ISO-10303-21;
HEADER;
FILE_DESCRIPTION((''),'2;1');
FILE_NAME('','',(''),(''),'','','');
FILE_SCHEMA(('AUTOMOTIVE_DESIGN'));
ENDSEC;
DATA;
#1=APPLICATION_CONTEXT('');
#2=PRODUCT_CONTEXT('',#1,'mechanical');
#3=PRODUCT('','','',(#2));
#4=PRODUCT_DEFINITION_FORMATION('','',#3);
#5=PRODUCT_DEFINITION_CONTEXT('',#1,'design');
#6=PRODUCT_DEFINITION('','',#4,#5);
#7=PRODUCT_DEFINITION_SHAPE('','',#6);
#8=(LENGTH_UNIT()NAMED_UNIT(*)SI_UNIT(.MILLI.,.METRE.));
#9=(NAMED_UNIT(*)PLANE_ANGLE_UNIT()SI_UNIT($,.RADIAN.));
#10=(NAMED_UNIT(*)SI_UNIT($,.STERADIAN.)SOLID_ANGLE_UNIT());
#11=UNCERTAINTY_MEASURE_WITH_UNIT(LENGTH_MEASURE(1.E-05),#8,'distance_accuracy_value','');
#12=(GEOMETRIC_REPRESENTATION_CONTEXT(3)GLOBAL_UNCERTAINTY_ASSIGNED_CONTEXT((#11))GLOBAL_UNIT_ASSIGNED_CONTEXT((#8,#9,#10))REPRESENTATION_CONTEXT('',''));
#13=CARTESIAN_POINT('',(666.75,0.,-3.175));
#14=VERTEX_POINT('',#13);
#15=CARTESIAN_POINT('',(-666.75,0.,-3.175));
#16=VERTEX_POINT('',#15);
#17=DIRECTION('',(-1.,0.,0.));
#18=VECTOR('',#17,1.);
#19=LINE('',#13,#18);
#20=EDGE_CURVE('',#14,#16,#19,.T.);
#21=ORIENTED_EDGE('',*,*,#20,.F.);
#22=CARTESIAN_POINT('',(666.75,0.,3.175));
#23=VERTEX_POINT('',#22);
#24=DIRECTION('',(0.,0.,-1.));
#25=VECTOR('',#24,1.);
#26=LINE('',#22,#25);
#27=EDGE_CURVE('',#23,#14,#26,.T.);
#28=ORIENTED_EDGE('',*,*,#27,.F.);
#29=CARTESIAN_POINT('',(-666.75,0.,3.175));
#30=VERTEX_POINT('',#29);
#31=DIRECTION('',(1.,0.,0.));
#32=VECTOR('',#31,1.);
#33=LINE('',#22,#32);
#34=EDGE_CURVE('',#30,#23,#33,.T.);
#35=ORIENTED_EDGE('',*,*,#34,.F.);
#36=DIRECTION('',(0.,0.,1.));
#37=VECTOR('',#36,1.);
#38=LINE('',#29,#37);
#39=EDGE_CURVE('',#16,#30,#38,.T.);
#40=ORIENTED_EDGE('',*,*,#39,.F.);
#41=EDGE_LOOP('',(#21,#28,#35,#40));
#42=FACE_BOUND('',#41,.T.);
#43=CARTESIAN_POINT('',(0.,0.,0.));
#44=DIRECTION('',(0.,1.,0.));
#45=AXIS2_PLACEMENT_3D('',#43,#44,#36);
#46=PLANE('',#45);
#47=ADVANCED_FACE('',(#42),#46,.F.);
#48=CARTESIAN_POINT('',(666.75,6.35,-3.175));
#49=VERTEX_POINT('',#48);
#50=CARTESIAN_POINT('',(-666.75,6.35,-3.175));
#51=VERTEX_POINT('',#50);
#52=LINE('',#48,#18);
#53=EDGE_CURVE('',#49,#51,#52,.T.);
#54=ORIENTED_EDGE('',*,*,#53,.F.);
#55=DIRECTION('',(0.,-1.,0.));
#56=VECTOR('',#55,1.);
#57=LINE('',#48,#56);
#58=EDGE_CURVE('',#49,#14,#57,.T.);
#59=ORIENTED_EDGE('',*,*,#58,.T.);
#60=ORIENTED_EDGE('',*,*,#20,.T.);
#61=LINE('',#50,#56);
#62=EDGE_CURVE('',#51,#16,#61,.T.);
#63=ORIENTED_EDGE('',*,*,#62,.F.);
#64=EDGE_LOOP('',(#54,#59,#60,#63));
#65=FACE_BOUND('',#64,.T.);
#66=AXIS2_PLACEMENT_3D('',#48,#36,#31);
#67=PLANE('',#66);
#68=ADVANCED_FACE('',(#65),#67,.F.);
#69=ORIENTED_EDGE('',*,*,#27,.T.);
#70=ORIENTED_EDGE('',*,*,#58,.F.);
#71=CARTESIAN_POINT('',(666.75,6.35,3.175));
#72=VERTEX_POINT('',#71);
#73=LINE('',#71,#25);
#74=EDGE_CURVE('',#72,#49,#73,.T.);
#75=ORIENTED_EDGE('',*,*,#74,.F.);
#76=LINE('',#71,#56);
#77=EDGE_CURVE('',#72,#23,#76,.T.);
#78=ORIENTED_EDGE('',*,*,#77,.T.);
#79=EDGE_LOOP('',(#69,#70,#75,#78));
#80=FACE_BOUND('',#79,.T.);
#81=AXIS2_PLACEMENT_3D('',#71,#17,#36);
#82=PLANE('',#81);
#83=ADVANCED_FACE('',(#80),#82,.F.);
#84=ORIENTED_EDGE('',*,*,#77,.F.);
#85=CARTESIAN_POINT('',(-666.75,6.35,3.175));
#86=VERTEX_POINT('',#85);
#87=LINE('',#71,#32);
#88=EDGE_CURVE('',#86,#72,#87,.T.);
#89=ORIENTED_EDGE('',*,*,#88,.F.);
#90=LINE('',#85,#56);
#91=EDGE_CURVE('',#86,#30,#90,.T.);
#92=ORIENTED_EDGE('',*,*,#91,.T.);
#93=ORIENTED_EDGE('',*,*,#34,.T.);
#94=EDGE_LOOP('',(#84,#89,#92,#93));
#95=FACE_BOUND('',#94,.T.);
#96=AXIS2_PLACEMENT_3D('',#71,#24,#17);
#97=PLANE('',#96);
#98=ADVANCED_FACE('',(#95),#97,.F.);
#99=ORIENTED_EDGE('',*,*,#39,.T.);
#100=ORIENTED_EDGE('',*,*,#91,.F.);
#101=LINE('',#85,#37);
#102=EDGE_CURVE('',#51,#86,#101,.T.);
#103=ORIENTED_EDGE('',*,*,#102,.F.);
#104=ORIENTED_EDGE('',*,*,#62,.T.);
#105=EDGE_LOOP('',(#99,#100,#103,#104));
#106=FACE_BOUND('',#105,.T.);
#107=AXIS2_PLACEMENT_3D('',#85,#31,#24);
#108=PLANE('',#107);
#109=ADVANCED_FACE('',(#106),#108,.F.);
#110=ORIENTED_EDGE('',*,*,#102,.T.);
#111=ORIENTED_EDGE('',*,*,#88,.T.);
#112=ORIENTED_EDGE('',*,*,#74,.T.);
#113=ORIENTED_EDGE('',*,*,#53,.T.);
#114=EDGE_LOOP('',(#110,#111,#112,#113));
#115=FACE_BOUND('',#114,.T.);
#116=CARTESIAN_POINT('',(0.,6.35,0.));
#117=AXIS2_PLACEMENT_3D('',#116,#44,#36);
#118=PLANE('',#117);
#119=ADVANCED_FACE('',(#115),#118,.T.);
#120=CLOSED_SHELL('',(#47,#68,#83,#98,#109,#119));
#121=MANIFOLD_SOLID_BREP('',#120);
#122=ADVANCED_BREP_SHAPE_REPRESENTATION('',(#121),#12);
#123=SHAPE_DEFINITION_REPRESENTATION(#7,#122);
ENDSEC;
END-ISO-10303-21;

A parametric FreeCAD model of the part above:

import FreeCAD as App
import Part
import Sketcher
from FreeCAD import Vector
Q = App.Units.Quantity


def add_polygon(sketch, points):
    """Adds a closed chain of lines whose ends are joined by coincident constraints."""
    first, n = sketch.GeometryCount, len(points)
    for a, b in zip(points, points[1:] + points[:1]):
        sketch.addGeometry(Part.LineSegment(App.Vector(*a, 0), App.Vector(*b, 0)), False)
    for i in range(n):
        sketch.addConstraint(Sketcher.Constraint("Coincident", first + i, 2, first + (i + 1) % n, 1))

doc = App.newDocument("Part")
params = doc.addObject("Spreadsheet::Sheet", "Params")
for row, (alias, value) in enumerate([
    ("sketch1_width", "52.5 in"),
    ("sketch1_height", "0.25 in"),
    ("pad1_length", "0.25 in"),
], start=1):
    params.set(f"A{row}", alias)
    params.set(f"B{row}", "=" + value)
    params.setAlias(f"B{row}", alias)

body = doc.addObject("PartDesign::Body", "Body")

sketch1 = doc.addObject("Sketcher::SketchObject", "Sketch")
body.addObject(sketch1)
sketch1.AttachmentSupport = (doc.XZ_Plane, [""])
sketch1.MapMode = "FlatFace"
add_polygon(sketch1, [(-667, -3), (-667, 3), (667, 3), (667, -3)])
sketch1.addConstraint(Sketcher.Constraint("Vertical", 0))
sketch1.addConstraint(Sketcher.Constraint("Horizontal", 1))
sketch1.addConstraint(Sketcher.Constraint("Vertical", 2))
sketch1.addConstraint(Sketcher.Constraint("Horizontal", 3))
sketch1.addConstraint(Sketcher.Constraint("Symmetric", 0, 2, 2, 2, -1, 1))
sketch1.addConstraint(Sketcher.Constraint("DistanceX", 1, 1, 1, 2, Q("52.5 in")))
sketch1.addConstraint(Sketcher.Constraint("DistanceY", 0, 1, 0, 2, Q("0.25 in")))
sketch1.setExpression("Constraints[9]", "Params.sketch1_width")
sketch1.setExpression("Constraints[10]", "Params.sketch1_height")
pad1 = doc.addObject("PartDesign::Pad", "Pad")
body.addObject(pad1)
pad1.Profile = sketch1
pad1.setExpression("Length", "Params.pad1_length")
pad1.Reversed = True

doc.recompute()
